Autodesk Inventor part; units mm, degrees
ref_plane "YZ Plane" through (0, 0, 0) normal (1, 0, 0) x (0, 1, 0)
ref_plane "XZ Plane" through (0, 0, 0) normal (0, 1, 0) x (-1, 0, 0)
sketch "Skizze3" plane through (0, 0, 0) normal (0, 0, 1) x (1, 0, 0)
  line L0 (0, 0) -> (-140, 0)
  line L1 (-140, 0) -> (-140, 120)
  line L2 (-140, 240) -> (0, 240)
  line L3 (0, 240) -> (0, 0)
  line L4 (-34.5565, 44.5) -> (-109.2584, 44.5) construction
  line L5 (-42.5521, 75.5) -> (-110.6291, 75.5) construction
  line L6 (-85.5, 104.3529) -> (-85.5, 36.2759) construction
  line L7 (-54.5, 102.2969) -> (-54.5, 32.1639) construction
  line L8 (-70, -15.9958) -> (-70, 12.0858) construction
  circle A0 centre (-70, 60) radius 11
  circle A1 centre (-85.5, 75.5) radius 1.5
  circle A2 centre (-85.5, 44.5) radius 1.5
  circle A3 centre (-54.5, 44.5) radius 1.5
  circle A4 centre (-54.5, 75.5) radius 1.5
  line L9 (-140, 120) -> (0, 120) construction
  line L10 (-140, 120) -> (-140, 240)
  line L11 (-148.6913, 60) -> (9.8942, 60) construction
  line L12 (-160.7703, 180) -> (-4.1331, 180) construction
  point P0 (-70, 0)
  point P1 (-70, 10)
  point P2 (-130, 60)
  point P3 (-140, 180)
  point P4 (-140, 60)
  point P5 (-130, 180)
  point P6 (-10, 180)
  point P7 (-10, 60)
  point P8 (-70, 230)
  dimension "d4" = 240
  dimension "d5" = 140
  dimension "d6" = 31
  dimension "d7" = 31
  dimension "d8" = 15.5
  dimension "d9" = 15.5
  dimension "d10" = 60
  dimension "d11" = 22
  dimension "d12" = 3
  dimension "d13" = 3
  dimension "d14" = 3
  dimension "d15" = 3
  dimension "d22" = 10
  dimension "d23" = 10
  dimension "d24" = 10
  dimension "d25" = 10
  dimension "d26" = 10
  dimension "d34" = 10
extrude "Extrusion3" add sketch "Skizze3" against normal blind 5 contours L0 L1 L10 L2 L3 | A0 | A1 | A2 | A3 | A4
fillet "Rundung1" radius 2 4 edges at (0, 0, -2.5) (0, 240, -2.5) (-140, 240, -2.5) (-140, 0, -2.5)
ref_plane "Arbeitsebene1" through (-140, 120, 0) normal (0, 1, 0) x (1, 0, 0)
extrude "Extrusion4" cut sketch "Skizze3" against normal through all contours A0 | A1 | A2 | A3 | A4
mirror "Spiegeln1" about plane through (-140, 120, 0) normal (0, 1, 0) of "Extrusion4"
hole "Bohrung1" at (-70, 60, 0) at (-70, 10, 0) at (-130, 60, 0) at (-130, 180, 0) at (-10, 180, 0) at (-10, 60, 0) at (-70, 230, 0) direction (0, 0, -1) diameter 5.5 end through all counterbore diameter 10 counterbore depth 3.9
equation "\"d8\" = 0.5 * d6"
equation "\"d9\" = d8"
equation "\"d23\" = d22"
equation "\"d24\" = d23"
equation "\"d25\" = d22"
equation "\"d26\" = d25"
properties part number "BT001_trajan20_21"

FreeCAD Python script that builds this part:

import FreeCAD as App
import Part
import Sketcher
from FreeCAD import Vector
Q = App.Units.Quantity


def edges_at(feature, points):
    """Names of the edges that pass closest to the given points."""
    edges = feature.Shape.Edges
    near = lambda p: min(range(len(edges)), key=lambda i: edges[i].distToShape(Part.Vertex(*p))[0])
    return sorted({f"Edge{near(p) + 1}" for p in points})

doc = App.newDocument("Part")
body = doc.addObject("PartDesign::Body", "Body")

sketch1 = doc.addObject("Sketcher::SketchObject", "Sketch")
body.addObject(sketch1)
sketch1.AttachmentSupport = (doc.XY_Plane, [""])
sketch1.MapMode = "FlatFace"
sketch1.addGeometry([
    Part.LineSegment(Vector(-140, 0, 0), Vector(0, 0, 0)),
    Part.LineSegment(Vector(0, 0, 0), Vector(0, 240, 0)),
    Part.LineSegment(Vector(0, 240, 0), Vector(-140, 240, 0)),
    Part.LineSegment(Vector(-140, 240, 0), Vector(-140, 0, 0)),
], False)
sketch1.addConstraint([
    Sketcher.Constraint("Coincident", 0, 2, 1, 1),
    Sketcher.Constraint("Coincident", 1, 2, 2, 1),
    Sketcher.Constraint("Coincident", 2, 2, 3, 1),
    Sketcher.Constraint("Coincident", 3, 2, 0, 1),
    Sketcher.Constraint("Horizontal", 0),
    Sketcher.Constraint("Vertical", 1),
    Sketcher.Constraint("Horizontal", 2),
    Sketcher.Constraint("Vertical", 3),
    Sketcher.Constraint("Coincident", 0, 2, -1, 1),
    Sketcher.Constraint("DistanceX", 0, 1, 0, 2, Q("140 mm")),
    Sketcher.Constraint("DistanceY", 1, 1, 1, 2, Q("240 mm")),
])
pad1 = doc.addObject("PartDesign::Pad", "Pad")
body.addObject(pad1)
pad1.Profile = sketch1
pad1.Length = 5
pad1.Reversed = True
doc.recompute()

fillet = doc.addObject("PartDesign::Fillet", "Fillet")
body.addObject(fillet)
fillet.Base = (pad1, edges_at(pad1, [
    (0, 0, -2.5),
    (0, 240, -2.5),
    (-140, 240, -2.5),
    (-140, 0, -2.5),
]))
fillet.Radius = 2

sketch2 = doc.addObject("Sketcher::SketchObject", "Sketch001")
body.addObject(sketch2)
sketch2.AttachmentSupport = (doc.XY_Plane, [""])
sketch2.MapMode = "FlatFace"
sketch2.addGeometry([
    Part.Circle(Vector(-70, 60, 0), Vector(0, 0, 1), 11),
    Part.Circle(Vector(-85.5, 75.5, 0), Vector(0, 0, 1), 1.5),
    Part.Circle(Vector(-85.5, 44.5, 0), Vector(0, 0, 1), 1.5),
    Part.Circle(Vector(-54.5, 44.5, 0), Vector(0, 0, 1), 1.5),
    Part.Circle(Vector(-54.5, 75.5, 0), Vector(0, 0, 1), 1.5),
], False)
sketch2.addConstraint([
    Sketcher.Constraint("Equal", 1, 2),
    Sketcher.Constraint("Equal", 2, 3),
    Sketcher.Constraint("Equal", 3, 4),
    Sketcher.Constraint("Horizontal", 2, 3, 3, 3),
    Sketcher.Constraint("Horizontal", 1, 3, 4, 3),
    Sketcher.Constraint("Vertical", 1, 3, 2, 3),
    Sketcher.Constraint("Vertical", 3, 3, 4, 3),
    Sketcher.Constraint("Diameter", 0, Q("22 mm")),
    Sketcher.Constraint("Diameter", 1, Q("3 mm")),
    Sketcher.Constraint("DistanceY", -1, 1, 0, 3, Q("60 mm")),
    Sketcher.Constraint("DistanceY", 2, 3, 1, 3, Q("31 mm")),
    Sketcher.Constraint("DistanceX", 2, 3, 3, 3, Q("31 mm")),
    Sketcher.Constraint("DistanceX", 1, 3, 0, 3, Q("15.5 mm")),
    Sketcher.Constraint("DistanceY", 0, 3, 1, 3, Q("15.5 mm")),
    Sketcher.Constraint("DistanceX", 0, 3, -1, 1, Q("70 mm")),
])
pocket1 = doc.addObject("PartDesign::Pocket", "Pocket")
body.addObject(pocket1)
pocket1.Profile = sketch2
pocket1.Type = "ThroughAll"
doc.recompute()

datumplane = doc.addObject("PartDesign::Plane", "DatumPlane")
body.addObject(datumplane)
datumplane.AttachmentSupport = (doc.XZ_Plane, [""])
datumplane.MapMode = "FlatFace"
datumplane.AttachmentOffset = App.Placement(Vector(0, 0, -120), App.Rotation())
mirrored = doc.addObject("PartDesign::Mirrored", "Mirrored")
body.addObject(mirrored)
mirrored.Originals = [pocket1]
mirrored.MirrorPlane = (datumplane, [""])
body.Tip = mirrored

sketch3 = doc.addObject("Sketcher::SketchObject", "Sketch002")
body.addObject(sketch3)
sketch3.AttachmentSupport = (doc.XY_Plane, [""])
sketch3.MapMode = "FlatFace"
sketch3.addGeometry([
    Part.Circle(Vector(-70, 60, 0), Vector(0, 0, 1), 2.8),
    Part.Circle(Vector(-70, 10, 0), Vector(0, 0, 1), 2.8),
    Part.Circle(Vector(-130, 60, 0), Vector(0, 0, 1), 2.8),
    Part.Circle(Vector(-130, 180, 0), Vector(0, 0, 1), 2.8),
    Part.Circle(Vector(-10, 180, 0), Vector(0, 0, 1), 2.8),
    Part.Circle(Vector(-10, 60, 0), Vector(0, 0, 1), 2.8),
    Part.Circle(Vector(-70, 230, 0), Vector(0, 0, 1), 2.8),
], False)
sketch3.addConstraint([
    Sketcher.Constraint("Equal", 0, 1),
    Sketcher.Constraint("Equal", 1, 2),
    Sketcher.Constraint("Equal", 2, 3),
    Sketcher.Constraint("Equal", 3, 4),
    Sketcher.Constraint("Equal", 4, 5),
    Sketcher.Constraint("Equal", 5, 6),
    Sketcher.Constraint("Horizontal", 0, 3, 2, 3),
    Sketcher.Constraint("Horizontal", 3, 3, 4, 3),
    Sketcher.Constraint("Horizontal", 2, 3, 5, 3),
    Sketcher.Constraint("Vertical", 0, 3, 1, 3),
    Sketcher.Constraint("Vertical", 2, 3, 3, 3),
    Sketcher.Constraint("Vertical", 4, 3, 5, 3),
    Sketcher.Constraint("Vertical", 1, 3, 6, 3),
    Sketcher.Constraint("Diameter", 0, Q("5.5 mm")),
    Sketcher.Constraint("DistanceX", 0, 3, -1, 1, Q("70 mm")),
    Sketcher.Constraint("DistanceY", -1, 1, 0, 3, Q("60 mm")),
    Sketcher.Constraint("DistanceY", -1, 1, 1, 3, Q("10 mm")),
    Sketcher.Constraint("DistanceX", 2, 3, -1, 1, Q("130 mm")),
    Sketcher.Constraint("DistanceY", -1, 1, 3, 3, Q("180 mm")),
    Sketcher.Constraint("DistanceX", 4, 3, -1, 1, Q("10 mm")),
    Sketcher.Constraint("DistanceY", -1, 1, 6, 3, Q("230 mm")),
])
doc.recompute()
hole = doc.addObject("PartDesign::Hole", "Hole")
body.addObject(hole)
hole.Profile = sketch3
hole.ThreadType = "None"
hole.Diameter = 5.5
hole.DepthType = "ThroughAll"
hole.HoleCutType = "Counterbore"
hole.HoleCutDiameter = 10
hole.HoleCutDepth = 3.9

doc.recompute()
